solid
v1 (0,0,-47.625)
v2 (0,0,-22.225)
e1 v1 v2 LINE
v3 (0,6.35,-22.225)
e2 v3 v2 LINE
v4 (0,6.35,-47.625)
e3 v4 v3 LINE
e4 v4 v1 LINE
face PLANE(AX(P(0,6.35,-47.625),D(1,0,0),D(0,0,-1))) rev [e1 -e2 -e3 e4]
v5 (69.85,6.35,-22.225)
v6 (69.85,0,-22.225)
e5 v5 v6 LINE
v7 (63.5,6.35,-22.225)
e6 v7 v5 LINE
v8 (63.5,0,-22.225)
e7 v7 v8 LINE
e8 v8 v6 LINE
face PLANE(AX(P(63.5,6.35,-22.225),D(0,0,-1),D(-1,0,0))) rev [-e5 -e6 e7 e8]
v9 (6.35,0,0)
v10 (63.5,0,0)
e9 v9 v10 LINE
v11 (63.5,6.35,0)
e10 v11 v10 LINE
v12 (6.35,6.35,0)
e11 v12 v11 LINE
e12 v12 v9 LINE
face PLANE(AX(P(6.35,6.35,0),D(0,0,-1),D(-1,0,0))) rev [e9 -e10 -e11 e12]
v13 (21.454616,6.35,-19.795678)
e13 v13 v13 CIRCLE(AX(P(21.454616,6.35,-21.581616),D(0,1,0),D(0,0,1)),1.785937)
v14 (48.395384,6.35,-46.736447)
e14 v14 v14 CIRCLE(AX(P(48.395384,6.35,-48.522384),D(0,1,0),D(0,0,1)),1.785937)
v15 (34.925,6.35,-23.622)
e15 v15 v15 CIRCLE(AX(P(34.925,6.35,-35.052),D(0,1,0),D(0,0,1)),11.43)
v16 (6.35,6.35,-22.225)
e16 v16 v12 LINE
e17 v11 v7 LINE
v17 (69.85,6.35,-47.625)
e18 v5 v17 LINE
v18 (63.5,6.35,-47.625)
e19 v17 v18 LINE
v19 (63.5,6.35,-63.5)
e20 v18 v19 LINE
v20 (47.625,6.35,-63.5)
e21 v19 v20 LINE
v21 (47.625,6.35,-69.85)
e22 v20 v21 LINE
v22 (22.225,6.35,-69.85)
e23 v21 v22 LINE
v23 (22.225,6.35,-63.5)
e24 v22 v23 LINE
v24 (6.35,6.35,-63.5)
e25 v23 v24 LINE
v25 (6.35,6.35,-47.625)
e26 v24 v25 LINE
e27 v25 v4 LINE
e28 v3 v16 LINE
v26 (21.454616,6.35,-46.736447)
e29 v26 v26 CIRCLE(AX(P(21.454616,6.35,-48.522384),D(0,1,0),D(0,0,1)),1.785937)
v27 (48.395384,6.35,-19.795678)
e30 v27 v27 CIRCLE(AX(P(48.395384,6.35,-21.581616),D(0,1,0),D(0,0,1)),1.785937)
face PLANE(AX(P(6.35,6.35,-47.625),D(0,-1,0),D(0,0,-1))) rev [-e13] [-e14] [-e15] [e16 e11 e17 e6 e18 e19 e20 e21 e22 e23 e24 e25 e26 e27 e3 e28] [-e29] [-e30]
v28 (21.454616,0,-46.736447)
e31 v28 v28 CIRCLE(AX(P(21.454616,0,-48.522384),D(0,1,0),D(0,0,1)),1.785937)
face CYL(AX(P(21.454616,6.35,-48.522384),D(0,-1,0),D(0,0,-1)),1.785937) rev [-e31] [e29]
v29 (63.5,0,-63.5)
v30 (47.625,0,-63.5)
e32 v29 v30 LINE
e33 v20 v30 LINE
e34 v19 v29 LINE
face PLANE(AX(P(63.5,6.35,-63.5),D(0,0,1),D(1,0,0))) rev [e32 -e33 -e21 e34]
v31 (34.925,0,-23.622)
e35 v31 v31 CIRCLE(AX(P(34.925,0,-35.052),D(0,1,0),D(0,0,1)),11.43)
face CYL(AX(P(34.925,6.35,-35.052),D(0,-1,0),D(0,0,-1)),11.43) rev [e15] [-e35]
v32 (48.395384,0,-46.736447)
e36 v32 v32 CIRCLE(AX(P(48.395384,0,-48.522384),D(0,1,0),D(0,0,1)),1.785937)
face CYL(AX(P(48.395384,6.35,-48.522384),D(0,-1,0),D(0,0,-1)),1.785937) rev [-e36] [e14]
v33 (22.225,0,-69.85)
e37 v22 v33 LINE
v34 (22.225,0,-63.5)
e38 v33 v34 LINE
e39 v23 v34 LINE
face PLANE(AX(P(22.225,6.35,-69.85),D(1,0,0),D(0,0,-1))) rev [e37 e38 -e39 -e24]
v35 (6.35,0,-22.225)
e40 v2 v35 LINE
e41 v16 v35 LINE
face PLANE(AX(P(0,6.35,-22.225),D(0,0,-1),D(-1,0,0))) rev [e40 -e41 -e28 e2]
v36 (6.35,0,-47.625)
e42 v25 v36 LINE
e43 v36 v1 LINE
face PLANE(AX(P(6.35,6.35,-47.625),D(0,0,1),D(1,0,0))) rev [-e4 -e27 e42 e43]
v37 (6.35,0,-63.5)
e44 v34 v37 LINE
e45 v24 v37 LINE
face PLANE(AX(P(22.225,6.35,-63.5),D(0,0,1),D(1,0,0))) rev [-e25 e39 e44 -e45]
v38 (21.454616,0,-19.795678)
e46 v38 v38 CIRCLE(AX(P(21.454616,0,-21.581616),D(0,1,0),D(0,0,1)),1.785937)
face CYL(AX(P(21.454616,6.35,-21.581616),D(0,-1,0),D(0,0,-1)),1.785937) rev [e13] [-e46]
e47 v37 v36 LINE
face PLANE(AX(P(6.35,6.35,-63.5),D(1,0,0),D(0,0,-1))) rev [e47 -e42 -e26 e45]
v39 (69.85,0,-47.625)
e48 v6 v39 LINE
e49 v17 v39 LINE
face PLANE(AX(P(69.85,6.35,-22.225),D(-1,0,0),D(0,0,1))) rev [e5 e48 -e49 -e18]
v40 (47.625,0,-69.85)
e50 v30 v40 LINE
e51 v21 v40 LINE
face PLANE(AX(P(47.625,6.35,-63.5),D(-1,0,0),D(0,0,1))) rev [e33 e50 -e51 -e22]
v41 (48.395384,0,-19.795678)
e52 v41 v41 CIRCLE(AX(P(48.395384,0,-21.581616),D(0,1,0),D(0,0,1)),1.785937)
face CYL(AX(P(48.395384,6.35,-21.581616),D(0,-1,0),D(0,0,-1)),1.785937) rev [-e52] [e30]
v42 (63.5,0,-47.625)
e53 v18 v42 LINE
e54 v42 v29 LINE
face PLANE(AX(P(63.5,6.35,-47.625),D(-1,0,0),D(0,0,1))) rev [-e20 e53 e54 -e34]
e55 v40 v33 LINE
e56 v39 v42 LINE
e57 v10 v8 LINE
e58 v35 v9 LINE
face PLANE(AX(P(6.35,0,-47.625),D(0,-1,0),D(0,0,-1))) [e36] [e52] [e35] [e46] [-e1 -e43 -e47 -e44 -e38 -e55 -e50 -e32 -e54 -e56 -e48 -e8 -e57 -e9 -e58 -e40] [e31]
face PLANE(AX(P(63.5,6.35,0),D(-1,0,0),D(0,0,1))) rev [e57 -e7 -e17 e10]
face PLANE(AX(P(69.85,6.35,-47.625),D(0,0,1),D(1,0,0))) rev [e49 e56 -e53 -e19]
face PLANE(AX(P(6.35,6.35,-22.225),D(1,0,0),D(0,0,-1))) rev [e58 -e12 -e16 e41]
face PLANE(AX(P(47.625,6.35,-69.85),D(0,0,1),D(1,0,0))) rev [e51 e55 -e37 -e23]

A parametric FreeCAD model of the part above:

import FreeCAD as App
import Part
import Sketcher
Q = App.Units.Quantity


def add_polygon(sketch, points):
    """Adds a closed chain of lines whose ends are joined by coincident constraints."""
    first, n = sketch.GeometryCount, len(points)
    for a, b in zip(points, points[1:] + points[:1]):
        sketch.addGeometry(Part.LineSegment(App.Vector(*a, 0), App.Vector(*b, 0)), False)
    for i in range(n):
        sketch.addConstraint(Sketcher.Constraint("Coincident", first + i, 2, first + (i + 1) % n, 1))

doc = App.newDocument("Part")
body = doc.addObject("PartDesign::Body", "Body")

sketch1 = doc.addObject("Sketcher::SketchObject", "Sketch")
body.addObject(sketch1)
sketch1.AttachmentSupport = (doc.XZ_Plane, [""])
sketch1.MapMode = "FlatFace"
add_polygon(sketch1, [(6.3, -47.6), (0, -47.6), (0, -22.2), (6.3, -22.2), (6.3, 0), (63.5, 0), (63.5, -22.2), (69.8, -22.2), (69.8, -47.6), (63.5, -47.6), (63.5, -63.5), (47.6, -63.5), (47.6, -69.8), (22.2, -69.8), (22.2, -63.5), (6.3, -63.5)])
sketch1.addGeometry(Part.Circle(App.Vector(21.5, -21.6, 0), App.Vector(0, 0, 1), 1.8), False)
sketch1.addGeometry(Part.Circle(App.Vector(34.9, -35.1, 0), App.Vector(0, 0, 1), 11.4), False)
sketch1.addGeometry(Part.Circle(App.Vector(48.4, -21.6, 0), App.Vector(0, 0, 1), 1.8), False)
sketch1.addGeometry(Part.Circle(App.Vector(21.5, -48.5, 0), App.Vector(0, 0, 1), 1.8), False)
sketch1.addGeometry(Part.Circle(App.Vector(48.4, -48.5, 0), App.Vector(0, 0, 1), 1.8), False)
sketch1.addConstraint([
    Sketcher.Constraint("Horizontal", 0),
    Sketcher.Constraint("Vertical", 1),
    Sketcher.Constraint("Horizontal", 2),
    Sketcher.Constraint("Vertical", 3),
    Sketcher.Constraint("Horizontal", 4),
    Sketcher.Constraint("Vertical", 5),
    Sketcher.Constraint("Horizontal", 6),
    Sketcher.Constraint("Vertical", 7),
    Sketcher.Constraint("Horizontal", 8),
    Sketcher.Constraint("Vertical", 9),
    Sketcher.Constraint("Horizontal", 10),
    Sketcher.Constraint("Vertical", 11),
    Sketcher.Constraint("Horizontal", 12),
    Sketcher.Constraint("Vertical", 13),
    Sketcher.Constraint("Horizontal", 14),
    Sketcher.Constraint("Vertical", 15),
    Sketcher.Constraint("Equal", 16, 18),
    Sketcher.Constraint("Equal", 18, 19),
    Sketcher.Constraint("Equal", 19, 20),
    Sketcher.Constraint("PointOnObject", 0, 2, -2),
    Sketcher.Constraint("PointOnObject", 3, 2, -1),
    Sketcher.Constraint("Horizontal", 16, 3, 18, 3),
    Sketcher.Constraint("Horizontal", 19, 3, 20, 3),
    Sketcher.Constraint("Horizontal", 2, 2, 5, 2),
    Sketcher.Constraint("Horizontal", 0, 2, 7, 2),
    Sketcher.Constraint("Horizontal", 10, 2, 13, 2),
    Sketcher.Constraint("Vertical", 16, 3, 19, 3),
    Sketcher.Constraint("Vertical", 18, 3, 20, 3),
    Sketcher.Constraint("Vertical", 5, 2, 8, 2),
    Sketcher.Constraint("Vertical", 3, 2, 14, 2),
    Sketcher.Constraint("Equal", 2, 6),
    Sketcher.Constraint("Equal", 10, 14),
    Sketcher.Constraint("Equal", 12, 1),
    Sketcher.Constraint("Equal", 14, 9),
    Sketcher.Constraint("Equal", 8, 11),
    Sketcher.Constraint("Diameter", 17, Q("0.9 in")),
    Sketcher.Constraint("DistanceX", 12, 2, 12, 1, Q("1 in")),
    Sketcher.Constraint("Diameter", 16, Q("0.140625 in")),
    Sketcher.Constraint("DistanceX", 0, 2, 0, 1, Q("0.25 in")),
    Sketcher.Constraint("DistanceX", 4, 1, 4, 2, Q("2.25 in")),
    Sketcher.Constraint("DistanceY", 9, 2, -1, 1, Q("2.5 in")),
    Sketcher.Constraint("DistanceY", 17, 3, -1, 1, Q("1.38 in")),
    Sketcher.Constraint("DistanceX", -1, 1, 17, 3, Q("1.375 in")),
    Sketcher.Constraint("DistanceX", 16, 3, 18, 3, 26.940768),
    Sketcher.Constraint("DistanceY", 19, 3, 16, 3, 26.940768),
    Sketcher.Constraint("DistanceX", -1, 1, 16, 3, 21.454616),
    Sketcher.Constraint("DistanceY", 16, 3, -1, 1, 21.581616),
])
pad1 = doc.addObject("PartDesign::Pad", "Pad")
body.addObject(pad1)
pad1.Profile = sketch1
pad1.Length = Q("0.25 in")
pad1.Reversed = True

doc.recompute()
